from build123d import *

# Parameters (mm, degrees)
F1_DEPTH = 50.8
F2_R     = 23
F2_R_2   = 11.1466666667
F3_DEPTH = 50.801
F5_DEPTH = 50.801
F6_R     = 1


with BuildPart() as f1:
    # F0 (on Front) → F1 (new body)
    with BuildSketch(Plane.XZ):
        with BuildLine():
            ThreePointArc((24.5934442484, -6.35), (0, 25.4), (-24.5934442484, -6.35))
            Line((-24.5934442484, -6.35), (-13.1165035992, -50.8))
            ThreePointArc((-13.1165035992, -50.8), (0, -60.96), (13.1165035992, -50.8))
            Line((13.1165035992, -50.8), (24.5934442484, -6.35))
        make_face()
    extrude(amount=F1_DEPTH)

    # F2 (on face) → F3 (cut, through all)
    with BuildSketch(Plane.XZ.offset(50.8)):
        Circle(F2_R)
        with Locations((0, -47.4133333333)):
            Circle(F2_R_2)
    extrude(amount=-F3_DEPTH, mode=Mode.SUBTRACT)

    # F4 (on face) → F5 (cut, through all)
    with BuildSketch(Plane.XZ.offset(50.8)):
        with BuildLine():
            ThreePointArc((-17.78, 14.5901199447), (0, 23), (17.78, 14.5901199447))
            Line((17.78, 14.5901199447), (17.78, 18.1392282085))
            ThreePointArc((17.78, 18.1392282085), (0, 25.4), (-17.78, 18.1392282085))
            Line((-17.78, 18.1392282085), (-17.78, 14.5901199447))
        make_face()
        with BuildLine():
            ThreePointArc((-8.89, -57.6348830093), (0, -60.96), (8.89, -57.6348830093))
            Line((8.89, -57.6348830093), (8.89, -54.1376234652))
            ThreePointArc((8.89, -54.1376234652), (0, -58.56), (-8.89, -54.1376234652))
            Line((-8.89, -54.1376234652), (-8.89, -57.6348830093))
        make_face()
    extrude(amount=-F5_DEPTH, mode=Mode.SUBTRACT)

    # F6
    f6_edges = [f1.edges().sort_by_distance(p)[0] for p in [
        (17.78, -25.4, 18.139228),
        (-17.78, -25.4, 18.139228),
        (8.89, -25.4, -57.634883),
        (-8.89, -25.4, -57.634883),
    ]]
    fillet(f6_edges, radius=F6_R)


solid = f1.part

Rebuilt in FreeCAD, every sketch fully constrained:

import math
import FreeCAD as App
import Part
import Sketcher


def edges_at(feature, points):
    """Names of the edges that pass closest to the given points."""
    edges = feature.Shape.Edges
    near = lambda p: min(range(len(edges)), key=lambda i: edges[i].distToShape(Part.Vertex(*p))[0])
    return sorted({f"Edge{near(p) + 1}" for p in points})

doc = App.newDocument("Part")
body = doc.addObject("PartDesign::Body", "Body")

# Sketch on XZ plane
sketch1 = body.newObject("Sketcher::SketchObject", "Sketch")
sketch1.AttachmentSupport = (doc.getObject("XZ_Plane"), [""])
sketch1.MapMode = "FlatFace"
sketch1.addGeometry(Part.ArcOfCircle(Part.Circle(App.Vector(0, 0, 0), App.Vector(0, 0, 1), 25.4), math.radians(-14.477512), math.radians(194.477512)), False)
sketch1.addGeometry(Part.LineSegment(App.Vector(-24.593444, -6.35, 0), App.Vector(-13.116504, -50.8, 0)), False)
sketch1.addGeometry(Part.ArcOfCircle(Part.Circle(App.Vector(0, -47.413333, 0), App.Vector(0, 0, 1), 13.546667), math.radians(-165.522488), math.radians(-14.477512)), False)
sketch1.addGeometry(Part.LineSegment(App.Vector(13.116504, -50.8, 0), App.Vector(24.593444, -6.35, 0)), False)
sketch1.addConstraint(Sketcher.Constraint("Tangent", 0, 2, 1, 1))
sketch1.addConstraint(Sketcher.Constraint("Tangent", 1, 2, 2, 1))
sketch1.addConstraint(Sketcher.Constraint("Tangent", 2, 2, 3, 1))
sketch1.addConstraint(Sketcher.Constraint("Tangent", 3, 2, 0, 1))
sketch1.addConstraint(Sketcher.Constraint("Coincident", 0, 3, -1, 1))
sketch1.addConstraint(Sketcher.Constraint("PointOnObject", 2, 3, -2))
sketch1.addConstraint(Sketcher.Constraint("Radius", 0, 25.4))
sketch1.addConstraint(Sketcher.Constraint("DistanceY", 1, 2, -1, 1, 50.8))
sketch1.addConstraint(Sketcher.Constraint("DistanceY", 0, 2, -1, 1, 6.35))
pad1 = body.newObject("PartDesign::Pad", "Pad")
pad1.Profile = sketch1
pad1.Length = 50.8

# Sketch on XZ plane
sketch2 = body.newObject("Sketcher::SketchObject", "Sketch001")
sketch2.AttachmentSupport = (doc.getObject("XZ_Plane"), [""])
sketch2.MapMode = "FlatFace"
sketch2.AttachmentOffset = App.Placement(App.Vector(0, 0, 50.8), App.Rotation())
sketch2.addGeometry(Part.Circle(App.Vector(0, 0, 0), App.Vector(0, 0, 1), 23), False)
sketch2.addGeometry(Part.Circle(App.Vector(0, -47.413333, 0), App.Vector(0, 0, 1), 11.146667), False)
sketch2.addConstraint(Sketcher.Constraint("Coincident", 0, 3, -1, 1))
sketch2.addConstraint(Sketcher.Constraint("PointOnObject", 1, 3, -2))
sketch2.addConstraint(Sketcher.Constraint("Diameter", 0, 46.0))
sketch2.addConstraint(Sketcher.Constraint("Diameter", 1, 22.293333))
sketch2.addConstraint(Sketcher.Constraint("DistanceY", 1, 3, -1, 1, 47.413333))
pocket1 = body.newObject("PartDesign::Pocket", "Pocket")
pocket1.Profile = sketch2
pocket1.Type = "ThroughAll"

# Sketch on XZ plane
sketch3 = body.newObject("Sketcher::SketchObject", "Sketch002")
sketch3.AttachmentSupport = (doc.getObject("XZ_Plane"), [""])
sketch3.MapMode = "FlatFace"
sketch3.AttachmentOffset = App.Placement(App.Vector(0, 0, 50.8), App.Rotation())
sketch3.addGeometry(Part.ArcOfCircle(Part.Circle(App.Vector(0, 0, 0), App.Vector(0, 0, 1), 23), math.radians(39.372017), math.radians(140.627983)), False)
sketch3.addGeometry(Part.LineSegment(App.Vector(17.78, 14.59012, 0), App.Vector(17.78, 18.139228, 0)), False)
sketch3.addGeometry(Part.ArcOfCircle(Part.Circle(App.Vector(0, 0, 0), App.Vector(0, 0, 1), 25.4), math.radians(45.572996), math.radians(134.427004)), False)
sketch3.addGeometry(Part.LineSegment(App.Vector(-17.78, 18.139228, 0), App.Vector(-17.78, 14.59012, 0)), False)
sketch3.addGeometry(Part.ArcOfCircle(Part.Circle(App.Vector(0, -47.413333, 0), App.Vector(0, 0, 1), 13.546667), math.radians(-131.0145), math.radians(-48.9855)), False)
sketch3.addGeometry(Part.LineSegment(App.Vector(8.89, -57.634883, 0), App.Vector(8.89, -54.137623, 0)), False)
sketch3.addGeometry(Part.ArcOfCircle(Part.Circle(App.Vector(0, -47.413333, 0), App.Vector(0, 0, 1), 11.146667), math.radians(-142.896573), math.radians(-37.103427)), False)
sketch3.addGeometry(Part.LineSegment(App.Vector(-8.89, -54.137623, 0), App.Vector(-8.89, -57.634883, 0)), False)
sketch3.addConstraint(Sketcher.Constraint("Coincident", 0, 1, 1, 1))
sketch3.addConstraint(Sketcher.Constraint("Coincident", 1, 2, 2, 1))
sketch3.addConstraint(Sketcher.Constraint("Coincident", 2, 2, 3, 1))
sketch3.addConstraint(Sketcher.Constraint("Coincident", 3, 2, 0, 2))
sketch3.addConstraint(Sketcher.Constraint("Coincident", 4, 2, 5, 1))
sketch3.addConstraint(Sketcher.Constraint("Coincident", 5, 2, 6, 2))
sketch3.addConstraint(Sketcher.Constraint("Coincident", 6, 1, 7, 1))
sketch3.addConstraint(Sketcher.Constraint("Coincident", 7, 2, 4, 1))
sketch3.addConstraint(Sketcher.Constraint("Vertical", 1))
sketch3.addConstraint(Sketcher.Constraint("Vertical", 3))
sketch3.addConstraint(Sketcher.Constraint("Vertical", 5))
sketch3.addConstraint(Sketcher.Constraint("Vertical", 7))
sketch3.addConstraint(Sketcher.Constraint("Coincident", 0, 3, -1, 1))
sketch3.addConstraint(Sketcher.Constraint("Coincident", 2, 3, -1, 1))
sketch3.addConstraint(Sketcher.Constraint("Coincident", 6, 3, 4, 3))
sketch3.addConstraint(Sketcher.Constraint("Symmetric", 5, 2, 6, 1, -2))
sketch3.addConstraint(Sketcher.Constraint("Horizontal", 1, 2, 2, 2))
sketch3.addConstraint(Sketcher.Constraint("Radius", 0, 23.0))
sketch3.addConstraint(Sketcher.Constraint("Radius", 2, 25.4))
sketch3.addConstraint(Sketcher.Constraint("DistanceX", -1, 1, 0, 1, 17.78))
sketch3.addConstraint(Sketcher.Constraint("DistanceX", -1, 1, 4, 2, 8.89))
sketch3.addConstraint(Sketcher.Constraint("Radius", 4, 13.546667))
sketch3.addConstraint(Sketcher.Constraint("Radius", 6, 11.146667))
sketch3.addConstraint(Sketcher.Constraint("DistanceY", 4, 3, 1, 2, 65.552562))
pocket2 = body.newObject("PartDesign::Pocket", "Pocket001")
pocket2.Profile = sketch3
pocket2.Type = "ThroughAll"
doc.recompute()

fillet = body.newObject("PartDesign::Fillet", "Fillet")
fillet.Base = (pocket2, edges_at(pocket2, [
    (17.78, -25.4, 18.139),
    (-17.78, -25.4, 18.139),
    (8.89, -25.4, -57.635),
    (-8.89, -25.4, -57.635),
]))
fillet.Radius = 1

doc.recompute()
